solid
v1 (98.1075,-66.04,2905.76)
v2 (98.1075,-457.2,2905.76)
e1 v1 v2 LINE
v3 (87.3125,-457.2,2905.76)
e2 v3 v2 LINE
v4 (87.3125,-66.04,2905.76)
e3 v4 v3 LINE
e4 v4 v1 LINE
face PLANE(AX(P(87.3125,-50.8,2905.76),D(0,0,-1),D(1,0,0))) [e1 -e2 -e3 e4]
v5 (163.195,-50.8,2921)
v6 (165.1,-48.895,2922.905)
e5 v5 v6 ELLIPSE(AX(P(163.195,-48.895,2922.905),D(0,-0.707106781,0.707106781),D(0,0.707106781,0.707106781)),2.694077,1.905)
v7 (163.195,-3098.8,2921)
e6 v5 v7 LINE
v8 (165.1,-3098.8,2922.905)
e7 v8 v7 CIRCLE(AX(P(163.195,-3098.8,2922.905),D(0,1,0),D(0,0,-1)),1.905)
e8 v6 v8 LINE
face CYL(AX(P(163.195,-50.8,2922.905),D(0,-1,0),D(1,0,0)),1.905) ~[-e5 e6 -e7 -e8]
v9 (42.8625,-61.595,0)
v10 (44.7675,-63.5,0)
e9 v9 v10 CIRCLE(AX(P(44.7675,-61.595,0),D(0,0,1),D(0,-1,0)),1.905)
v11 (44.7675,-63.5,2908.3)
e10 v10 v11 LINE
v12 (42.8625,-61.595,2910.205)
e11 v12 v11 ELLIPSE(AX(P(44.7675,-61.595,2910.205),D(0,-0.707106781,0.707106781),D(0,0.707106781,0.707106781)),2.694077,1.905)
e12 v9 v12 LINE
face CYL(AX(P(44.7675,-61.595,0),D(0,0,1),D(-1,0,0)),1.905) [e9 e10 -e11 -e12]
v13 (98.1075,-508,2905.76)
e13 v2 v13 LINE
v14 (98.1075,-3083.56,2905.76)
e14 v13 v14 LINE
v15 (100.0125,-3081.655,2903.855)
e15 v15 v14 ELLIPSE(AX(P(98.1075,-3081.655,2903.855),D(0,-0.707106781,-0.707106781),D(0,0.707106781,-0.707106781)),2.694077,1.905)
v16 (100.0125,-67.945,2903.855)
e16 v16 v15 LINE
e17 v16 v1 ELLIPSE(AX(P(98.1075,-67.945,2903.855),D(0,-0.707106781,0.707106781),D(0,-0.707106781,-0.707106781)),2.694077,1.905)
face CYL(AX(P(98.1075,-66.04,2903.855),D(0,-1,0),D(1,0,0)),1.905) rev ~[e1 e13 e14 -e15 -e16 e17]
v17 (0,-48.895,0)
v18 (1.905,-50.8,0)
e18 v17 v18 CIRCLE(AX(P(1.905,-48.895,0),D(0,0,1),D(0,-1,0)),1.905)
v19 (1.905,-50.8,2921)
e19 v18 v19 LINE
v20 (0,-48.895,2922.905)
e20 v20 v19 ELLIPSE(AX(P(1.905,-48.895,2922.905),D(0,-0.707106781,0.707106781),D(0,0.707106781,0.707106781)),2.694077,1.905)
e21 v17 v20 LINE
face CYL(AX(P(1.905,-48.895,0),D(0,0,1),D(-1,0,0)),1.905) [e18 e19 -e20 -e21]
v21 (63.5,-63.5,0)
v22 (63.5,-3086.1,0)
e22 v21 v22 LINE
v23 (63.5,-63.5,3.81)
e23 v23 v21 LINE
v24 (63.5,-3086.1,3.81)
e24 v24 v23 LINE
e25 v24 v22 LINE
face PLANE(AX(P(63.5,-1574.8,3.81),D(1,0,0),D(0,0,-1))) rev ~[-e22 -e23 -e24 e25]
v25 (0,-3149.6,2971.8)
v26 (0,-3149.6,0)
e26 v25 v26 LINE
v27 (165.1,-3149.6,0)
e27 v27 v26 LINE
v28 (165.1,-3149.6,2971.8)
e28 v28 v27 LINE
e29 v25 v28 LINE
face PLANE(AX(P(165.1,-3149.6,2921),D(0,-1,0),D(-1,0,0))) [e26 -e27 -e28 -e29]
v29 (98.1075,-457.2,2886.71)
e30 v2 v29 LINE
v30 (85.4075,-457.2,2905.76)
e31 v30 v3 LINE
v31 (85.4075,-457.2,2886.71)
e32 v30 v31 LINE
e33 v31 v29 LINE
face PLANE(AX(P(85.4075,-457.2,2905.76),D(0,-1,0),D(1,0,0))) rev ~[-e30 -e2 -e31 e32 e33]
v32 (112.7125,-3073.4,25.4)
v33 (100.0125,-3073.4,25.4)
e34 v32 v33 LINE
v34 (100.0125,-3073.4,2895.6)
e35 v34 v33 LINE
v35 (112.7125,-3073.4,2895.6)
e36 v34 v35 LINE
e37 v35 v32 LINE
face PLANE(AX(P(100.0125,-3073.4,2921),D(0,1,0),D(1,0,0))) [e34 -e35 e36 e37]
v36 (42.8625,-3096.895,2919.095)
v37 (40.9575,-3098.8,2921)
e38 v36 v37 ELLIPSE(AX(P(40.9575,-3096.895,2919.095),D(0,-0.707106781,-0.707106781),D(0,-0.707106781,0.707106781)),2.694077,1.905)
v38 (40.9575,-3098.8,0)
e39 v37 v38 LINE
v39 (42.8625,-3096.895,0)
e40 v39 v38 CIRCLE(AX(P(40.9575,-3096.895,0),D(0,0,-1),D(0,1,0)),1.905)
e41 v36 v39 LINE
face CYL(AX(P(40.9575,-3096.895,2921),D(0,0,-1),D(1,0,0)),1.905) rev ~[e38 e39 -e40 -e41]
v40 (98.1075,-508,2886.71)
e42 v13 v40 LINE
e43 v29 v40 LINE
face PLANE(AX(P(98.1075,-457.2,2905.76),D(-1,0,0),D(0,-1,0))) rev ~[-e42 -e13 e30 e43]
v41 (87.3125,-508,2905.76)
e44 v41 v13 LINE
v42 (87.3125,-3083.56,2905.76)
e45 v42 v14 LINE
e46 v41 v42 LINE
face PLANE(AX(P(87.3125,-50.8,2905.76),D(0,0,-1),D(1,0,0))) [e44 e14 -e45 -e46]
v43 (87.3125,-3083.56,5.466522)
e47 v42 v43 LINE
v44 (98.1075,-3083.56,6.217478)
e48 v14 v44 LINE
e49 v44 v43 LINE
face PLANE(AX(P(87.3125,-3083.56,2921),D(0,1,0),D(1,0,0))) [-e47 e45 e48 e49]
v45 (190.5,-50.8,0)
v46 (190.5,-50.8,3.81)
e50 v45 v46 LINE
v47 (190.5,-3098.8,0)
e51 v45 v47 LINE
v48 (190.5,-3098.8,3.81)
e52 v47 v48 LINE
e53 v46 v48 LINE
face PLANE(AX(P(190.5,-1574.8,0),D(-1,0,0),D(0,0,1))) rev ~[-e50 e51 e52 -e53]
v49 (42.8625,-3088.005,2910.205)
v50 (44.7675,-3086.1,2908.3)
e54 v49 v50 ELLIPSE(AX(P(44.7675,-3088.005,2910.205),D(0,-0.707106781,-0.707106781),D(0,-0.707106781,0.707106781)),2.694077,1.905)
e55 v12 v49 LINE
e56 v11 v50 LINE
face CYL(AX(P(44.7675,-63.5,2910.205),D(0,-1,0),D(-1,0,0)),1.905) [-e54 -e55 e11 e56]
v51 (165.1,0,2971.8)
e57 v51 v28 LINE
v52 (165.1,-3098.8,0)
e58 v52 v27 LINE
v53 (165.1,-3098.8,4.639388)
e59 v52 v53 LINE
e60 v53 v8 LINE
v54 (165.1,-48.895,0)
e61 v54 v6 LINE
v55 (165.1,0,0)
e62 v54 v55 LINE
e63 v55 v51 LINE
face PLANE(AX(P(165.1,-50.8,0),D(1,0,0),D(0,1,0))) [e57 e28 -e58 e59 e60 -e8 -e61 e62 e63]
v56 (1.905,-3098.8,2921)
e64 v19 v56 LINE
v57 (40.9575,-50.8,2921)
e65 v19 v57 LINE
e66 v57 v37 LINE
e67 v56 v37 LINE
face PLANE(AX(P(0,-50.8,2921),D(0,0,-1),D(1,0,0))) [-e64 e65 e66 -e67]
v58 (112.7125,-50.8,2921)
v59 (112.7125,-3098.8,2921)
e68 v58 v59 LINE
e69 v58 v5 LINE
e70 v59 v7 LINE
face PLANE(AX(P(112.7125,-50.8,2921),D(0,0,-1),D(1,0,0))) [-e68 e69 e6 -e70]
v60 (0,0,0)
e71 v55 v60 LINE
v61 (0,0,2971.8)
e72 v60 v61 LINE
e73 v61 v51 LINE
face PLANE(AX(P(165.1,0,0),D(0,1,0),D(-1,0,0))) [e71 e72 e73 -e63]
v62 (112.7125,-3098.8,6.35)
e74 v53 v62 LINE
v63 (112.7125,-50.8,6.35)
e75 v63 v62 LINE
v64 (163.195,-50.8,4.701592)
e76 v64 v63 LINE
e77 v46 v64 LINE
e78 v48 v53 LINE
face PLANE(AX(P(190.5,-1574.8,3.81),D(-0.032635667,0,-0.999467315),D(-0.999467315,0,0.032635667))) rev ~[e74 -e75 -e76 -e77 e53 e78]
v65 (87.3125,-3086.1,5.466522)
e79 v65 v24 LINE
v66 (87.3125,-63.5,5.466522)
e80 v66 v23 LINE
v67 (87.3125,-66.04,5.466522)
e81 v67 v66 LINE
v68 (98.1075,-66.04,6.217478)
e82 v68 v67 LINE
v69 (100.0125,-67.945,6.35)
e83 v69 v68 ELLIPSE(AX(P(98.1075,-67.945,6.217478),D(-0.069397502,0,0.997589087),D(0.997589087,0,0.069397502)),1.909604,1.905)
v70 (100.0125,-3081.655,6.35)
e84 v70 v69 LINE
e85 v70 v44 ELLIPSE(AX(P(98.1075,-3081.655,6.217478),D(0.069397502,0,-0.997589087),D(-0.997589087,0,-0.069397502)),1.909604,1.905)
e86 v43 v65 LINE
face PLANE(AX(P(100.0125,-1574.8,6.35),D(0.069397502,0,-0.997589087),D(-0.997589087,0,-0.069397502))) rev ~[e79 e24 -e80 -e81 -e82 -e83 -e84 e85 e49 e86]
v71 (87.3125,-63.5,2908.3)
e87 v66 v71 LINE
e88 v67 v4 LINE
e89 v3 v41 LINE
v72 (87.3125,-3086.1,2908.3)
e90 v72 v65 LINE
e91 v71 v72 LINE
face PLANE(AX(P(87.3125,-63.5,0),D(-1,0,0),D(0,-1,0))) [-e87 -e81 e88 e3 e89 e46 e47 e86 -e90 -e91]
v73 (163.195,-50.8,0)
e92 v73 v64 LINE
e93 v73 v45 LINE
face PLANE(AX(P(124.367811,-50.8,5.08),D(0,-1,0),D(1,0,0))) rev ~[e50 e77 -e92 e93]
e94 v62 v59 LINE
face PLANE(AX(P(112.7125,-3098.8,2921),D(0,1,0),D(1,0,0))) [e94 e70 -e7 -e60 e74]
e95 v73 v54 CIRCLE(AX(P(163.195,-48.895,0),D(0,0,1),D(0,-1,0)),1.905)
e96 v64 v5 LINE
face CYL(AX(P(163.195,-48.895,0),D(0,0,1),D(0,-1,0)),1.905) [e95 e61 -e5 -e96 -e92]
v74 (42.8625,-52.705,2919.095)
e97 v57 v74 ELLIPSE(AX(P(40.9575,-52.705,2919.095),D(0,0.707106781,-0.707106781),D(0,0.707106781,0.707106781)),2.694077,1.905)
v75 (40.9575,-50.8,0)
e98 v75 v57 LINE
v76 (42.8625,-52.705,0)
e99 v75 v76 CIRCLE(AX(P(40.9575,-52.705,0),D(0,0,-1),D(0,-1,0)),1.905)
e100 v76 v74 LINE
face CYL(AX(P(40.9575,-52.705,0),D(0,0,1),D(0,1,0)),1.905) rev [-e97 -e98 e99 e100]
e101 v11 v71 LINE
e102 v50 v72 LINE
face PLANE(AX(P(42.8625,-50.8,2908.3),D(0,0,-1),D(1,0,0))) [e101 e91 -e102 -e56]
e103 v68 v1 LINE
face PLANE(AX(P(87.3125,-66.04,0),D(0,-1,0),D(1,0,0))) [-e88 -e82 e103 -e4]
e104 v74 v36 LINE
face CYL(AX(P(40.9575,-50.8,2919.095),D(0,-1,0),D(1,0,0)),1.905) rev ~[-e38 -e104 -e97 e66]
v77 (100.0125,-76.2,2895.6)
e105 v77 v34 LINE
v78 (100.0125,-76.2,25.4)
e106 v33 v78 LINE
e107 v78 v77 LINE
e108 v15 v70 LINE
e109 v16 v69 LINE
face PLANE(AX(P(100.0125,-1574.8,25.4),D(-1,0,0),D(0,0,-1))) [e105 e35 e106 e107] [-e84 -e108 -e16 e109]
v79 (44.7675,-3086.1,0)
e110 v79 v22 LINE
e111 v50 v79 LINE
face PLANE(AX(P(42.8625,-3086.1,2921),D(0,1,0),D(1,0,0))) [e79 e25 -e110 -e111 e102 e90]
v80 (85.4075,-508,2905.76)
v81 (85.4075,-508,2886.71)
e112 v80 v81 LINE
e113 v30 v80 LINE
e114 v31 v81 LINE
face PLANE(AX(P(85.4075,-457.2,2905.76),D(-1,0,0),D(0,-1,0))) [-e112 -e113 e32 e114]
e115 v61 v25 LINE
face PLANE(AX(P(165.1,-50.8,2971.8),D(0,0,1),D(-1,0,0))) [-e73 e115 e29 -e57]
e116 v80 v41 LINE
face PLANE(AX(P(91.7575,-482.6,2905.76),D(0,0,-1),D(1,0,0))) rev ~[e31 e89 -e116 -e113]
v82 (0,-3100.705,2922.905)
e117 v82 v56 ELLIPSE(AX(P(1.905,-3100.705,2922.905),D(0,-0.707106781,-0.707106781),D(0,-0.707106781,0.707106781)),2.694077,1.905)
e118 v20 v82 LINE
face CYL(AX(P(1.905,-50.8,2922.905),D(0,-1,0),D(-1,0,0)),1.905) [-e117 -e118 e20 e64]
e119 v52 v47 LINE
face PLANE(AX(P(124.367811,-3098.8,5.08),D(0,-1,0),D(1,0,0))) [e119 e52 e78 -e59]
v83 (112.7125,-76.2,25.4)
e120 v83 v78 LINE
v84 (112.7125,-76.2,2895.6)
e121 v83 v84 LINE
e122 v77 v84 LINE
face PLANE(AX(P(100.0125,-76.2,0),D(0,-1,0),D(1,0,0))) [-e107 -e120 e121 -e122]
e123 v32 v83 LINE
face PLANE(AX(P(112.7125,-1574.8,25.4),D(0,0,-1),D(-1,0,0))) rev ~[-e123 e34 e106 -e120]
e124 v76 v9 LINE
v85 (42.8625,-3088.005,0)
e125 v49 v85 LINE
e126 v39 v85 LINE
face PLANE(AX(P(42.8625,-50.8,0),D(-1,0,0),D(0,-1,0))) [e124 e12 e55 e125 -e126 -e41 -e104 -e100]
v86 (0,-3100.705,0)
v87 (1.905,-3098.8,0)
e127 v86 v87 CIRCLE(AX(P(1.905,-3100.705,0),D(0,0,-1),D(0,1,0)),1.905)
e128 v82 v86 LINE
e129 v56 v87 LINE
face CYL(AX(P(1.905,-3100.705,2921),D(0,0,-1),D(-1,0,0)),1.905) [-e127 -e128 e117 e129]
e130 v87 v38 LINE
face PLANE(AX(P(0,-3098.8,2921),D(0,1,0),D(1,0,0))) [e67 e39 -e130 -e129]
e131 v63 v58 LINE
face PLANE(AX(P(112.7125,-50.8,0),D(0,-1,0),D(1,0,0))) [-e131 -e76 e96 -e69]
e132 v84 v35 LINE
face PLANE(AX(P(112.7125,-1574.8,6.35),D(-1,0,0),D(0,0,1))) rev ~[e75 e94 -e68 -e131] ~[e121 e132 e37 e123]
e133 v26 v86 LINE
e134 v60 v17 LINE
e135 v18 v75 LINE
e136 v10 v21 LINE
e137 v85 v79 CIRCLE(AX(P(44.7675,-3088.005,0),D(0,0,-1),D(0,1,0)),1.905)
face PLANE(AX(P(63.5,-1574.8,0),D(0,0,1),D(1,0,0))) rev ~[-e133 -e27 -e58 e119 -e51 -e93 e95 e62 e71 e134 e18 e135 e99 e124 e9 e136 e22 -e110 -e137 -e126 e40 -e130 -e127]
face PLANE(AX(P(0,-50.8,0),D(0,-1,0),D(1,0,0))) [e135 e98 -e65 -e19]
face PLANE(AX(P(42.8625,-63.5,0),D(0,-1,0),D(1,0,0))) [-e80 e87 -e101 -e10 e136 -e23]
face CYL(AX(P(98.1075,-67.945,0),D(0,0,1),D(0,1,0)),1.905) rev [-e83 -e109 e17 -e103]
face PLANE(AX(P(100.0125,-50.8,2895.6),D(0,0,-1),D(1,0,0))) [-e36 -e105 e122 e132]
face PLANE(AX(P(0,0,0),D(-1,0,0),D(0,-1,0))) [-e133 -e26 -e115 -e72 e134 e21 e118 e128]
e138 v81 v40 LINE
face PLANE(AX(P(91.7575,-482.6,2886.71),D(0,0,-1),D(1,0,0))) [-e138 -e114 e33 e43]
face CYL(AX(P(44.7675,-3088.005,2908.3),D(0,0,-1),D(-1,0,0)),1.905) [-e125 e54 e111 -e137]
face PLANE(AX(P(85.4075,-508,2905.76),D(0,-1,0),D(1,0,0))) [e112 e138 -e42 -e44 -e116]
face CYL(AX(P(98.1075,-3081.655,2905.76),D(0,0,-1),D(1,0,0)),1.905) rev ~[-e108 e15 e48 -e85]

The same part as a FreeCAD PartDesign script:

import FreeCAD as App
import Part
import Sketcher

V = App.Vector
Q = App.Units.Quantity


def edges_at(feature, points):
    """Names of the edges that pass closest to the given points."""
    edges = feature.Shape.Edges
    near = lambda p: min(range(len(edges)), key=lambda i: edges[i].distToShape(Part.Vertex(*p))[0])
    return sorted({f"Edge{near(p) + 1}" for p in points})


def add_polygon(sketch, points):
    """Adds a closed chain of lines whose ends are joined by coincident constraints."""
    first, n = sketch.GeometryCount, len(points)
    for a, b in zip(points, points[1:] + points[:1]):
        sketch.addGeometry(Part.LineSegment(App.Vector(*a, 0), App.Vector(*b, 0)), False)
    for i in range(n):
        sketch.addConstraint(Sketcher.Constraint("Coincident", first + i, 2, first + (i + 1) % n, 1))

doc = App.newDocument("Part")
body = doc.addObject("PartDesign::Body", "Body")

# Sketch on XY plane
sketch1 = doc.addObject("Sketcher::SketchObject", "Sketch")
body.addObject(sketch1)
sketch1.AttachmentSupport = (doc.XY_Plane, [""])
sketch1.MapMode = "FlatFace"
add_polygon(sketch1, [(165.1, 0), (0, 0), (0, -50.8), (42.9, -50.8), (42.9, -63.5), (87.3, -63.5), (87.3, -66), (100, -66), (100, -76.2), (112.7, -76.2), (112.7, -50.8), (165.1, -50.8)])  # lines 0-11
sketch1.addConstraint(Sketcher.Constraint("Horizontal", 0))
sketch1.addConstraint(Sketcher.Constraint("Vertical", 1))
sketch1.addConstraint(Sketcher.Constraint("Horizontal", 2))
sketch1.addConstraint(Sketcher.Constraint("Vertical", 3))
sketch1.addConstraint(Sketcher.Constraint("Horizontal", 4))
sketch1.addConstraint(Sketcher.Constraint("Vertical", 5))
sketch1.addConstraint(Sketcher.Constraint("Horizontal", 6))
sketch1.addConstraint(Sketcher.Constraint("Vertical", 7))
sketch1.addConstraint(Sketcher.Constraint("Horizontal", 8))
sketch1.addConstraint(Sketcher.Constraint("Vertical", 9))
sketch1.addConstraint(Sketcher.Constraint("Horizontal", 10))
sketch1.addConstraint(Sketcher.Constraint("Vertical", 11))
sketch1.addConstraint(Sketcher.Constraint("Coincident", 0, 2, -1, 1))
sketch1.addConstraint(Sketcher.Constraint("Horizontal", 2, 2, 9, 2))
sketch1.addConstraint(Sketcher.Constraint("Equal", 6, 8))
sketch1.addConstraint(Sketcher.Constraint("Equal", 8, 3))
sketch1.addConstraint(Sketcher.Constraint("DistanceY", 1, 2, 1, 1, Q("2 in")))
sketch1.addConstraint(Sketcher.Constraint("DistanceY", 9, 1, 9, 2, Q("1 in")))
sketch1.addConstraint(Sketcher.Constraint("DistanceX", 0, 2, 0, 1, Q("6.5 in")))
sketch1.addConstraint(Sketcher.Constraint("DistanceX", 6, 1, 6, 2, Q("0.5 in")))
sketch1.addConstraint(Sketcher.Constraint("DistanceY", 5, 2, 5, 1, Q("0.1 in")))
sketch1.addConstraint(Sketcher.Constraint("DistanceX", 4, 1, 4, 2, Q("1.75 in")))
sketch1.addConstraint(Sketcher.Constraint("DistanceX", 2, 1, 2, 2, Q("1.6875 in")))

# Sketch on YZ plane
sketch2 = doc.addObject("Sketcher::SketchObject", "Sketch001")
body.addObject(sketch2)
sketch2.AttachmentSupport = (doc.YZ_Plane, [""])
sketch2.MapMode = "FlatFace"
sketch2.addGeometry(Part.LineSegment(V(-51, 0, 0), V(-51, 2921, 0)), False)
sketch2.addGeometry(Part.LineSegment(V(-51, 2921, 0), V(-3099, 2921, 0)), False)
sketch2.addGeometry(Part.LineSegment(V(-3099, 2921, 0), V(-3099, 0, 0)), False)
sketch2.addConstraint(Sketcher.Constraint("Coincident", 0, 2, 1, 1))
sketch2.addConstraint(Sketcher.Constraint("Coincident", 1, 2, 2, 1))
sketch2.addConstraint(Sketcher.Constraint("Vertical", 0))
sketch2.addConstraint(Sketcher.Constraint("Horizontal", 1))
sketch2.addConstraint(Sketcher.Constraint("Vertical", 2))
sketch2.addConstraint(Sketcher.Constraint("PointOnObject", 0, 1, -1))
sketch2.addConstraint(Sketcher.Constraint("PointOnObject", 2, 2, -1))
sketch2.addConstraint(Sketcher.Constraint("DistanceX", 1, 2, 1, 1, Q("120 in")))
sketch2.addConstraint(Sketcher.Constraint("DistanceY", 0, 1, 0, 2, Q("115 in")))
sketch2.addConstraint(Sketcher.Constraint("DistanceX", 0, 1, -1, 1, Q("2 in")))
doc.recompute()

additivepipe = doc.addObject("PartDesign::AdditivePipe", "AdditivePipe")
body.addObject(additivepipe)
additivepipe.Profile = sketch1
additivepipe.Spine = (sketch2, ["Edge1", "Edge2", "Edge3"])
additivepipe.Transition = "Right corner"
doc.recompute()

fillet = doc.addObject("PartDesign::Fillet", "Fillet")
body.addObject(fillet)
fillet.Base = (additivepipe, edges_at(additivepipe, [
    (0, -50.8, 1460.5),
    (42.862, -50.8, 1460.5),
    (42.862, -63.5, 1454.15),
    (165.1, -50.8, 1460.5),
    (165.1, -1574.8, 2921),
    (0, -1574.8, 2921),
    (42.862, -1574.8, 2921),
    (42.862, -1574.8, 2908.3),
    (0, -3098.8, 1460.5),
    (42.862, -3098.8, 1460.5),
    (42.862, -3086.1, 1454.15),
    (100.013, -3083.56, 1452.88),
    (100.013, -1574.8, 2905.76),
    (100.013, -66.04, 1452.88),
]))
fillet.Radius = Q("0.075 in")

# Sketch on XZ plane
sketch3 = doc.addObject("Sketcher::SketchObject", "Sketch002")
body.addObject(sketch3)
sketch3.AttachmentSupport = (doc.XZ_Plane, [""])
sketch3.MapMode = "FlatFace"
sketch3.AttachmentOffset = App.Placement(V(0, 0, 62 * 25.4), App.Rotation())
add_polygon(sketch3, [(63.5, 3.8), (63.5, 0), (190.5, 0), (190.5, 3.8), (112.7, 6.3), (112.7, 25.4), (100, 25.4), (100, 6.3)])  # lines 0-7
sketch3.addConstraint(Sketcher.Constraint("Vertical", 0))
sketch3.addConstraint(Sketcher.Constraint("Horizontal", 1))
sketch3.addConstraint(Sketcher.Constraint("Vertical", 2))
sketch3.addConstraint(Sketcher.Constraint("Vertical", 4))
sketch3.addConstraint(Sketcher.Constraint("Horizontal", 5))
sketch3.addConstraint(Sketcher.Constraint("Vertical", 6))
sketch3.addConstraint(Sketcher.Constraint("PointOnObject", 0, 2, -1))
sketch3.addConstraint(Sketcher.Constraint("Horizontal", 3, 2, 6, 2))
sketch3.addConstraint(Sketcher.Constraint("Horizontal", 2, 2, 7, 2))
sketch3.addConstraint(Sketcher.Constraint("DistanceX", 1, 1, 1, 2, Q("5 in")))
sketch3.addConstraint(Sketcher.Constraint("DistanceX", 5, 2, 5, 1, Q("0.5 in")))
sketch3.addConstraint(Sketcher.Constraint("DistanceY", -1, 1, 4, 2, Q("1 in")))
sketch3.addConstraint(Sketcher.Constraint("DistanceY", 0, 2, 0, 1, Q("0.15 in")))
sketch3.addConstraint(Sketcher.Constraint("DistanceY", 4, 1, 4, 2, Q("0.75 in")))
sketch3.addConstraint(Sketcher.Constraint("DistanceX", -1, 1, 0, 2, Q("2.5 in")))
sketch3.addConstraint(Sketcher.Constraint("DistanceX", -1, 1, 3, 2, Q("4.4375 in")))
pad1 = doc.addObject("PartDesign::Pad", "Pad")
body.addObject(pad1)
pad1.Profile = sketch3
pad1.Type = "TwoLengths"
pad1.Length = Q("60 in")
pad1.Length2 = Q("60 in")
pad1.Reversed = True

# Sketch on XY plane
sketch4 = doc.addObject("Sketcher::SketchObject", "Sketch003")
body.addObject(sketch4)
sketch4.AttachmentSupport = (doc.XY_Plane, [""])
sketch4.MapMode = "FlatFace"
sketch4.AttachmentOffset = App.Placement(V(0, 0, 114.4 * 25.4), App.Rotation())
add_polygon(sketch4, [(85, -508), (85, -457), (98, -457), (98, -508)])  # lines 0-3
sketch4.addConstraint(Sketcher.Constraint("Vertical", 0))
sketch4.addConstraint(Sketcher.Constraint("Horizontal", 1))
sketch4.addConstraint(Sketcher.Constraint("Vertical", 2))
sketch4.addConstraint(Sketcher.Constraint("Horizontal", 3))
sketch4.addConstraint(Sketcher.Constraint("DistanceY", 0, 1, 0, 2, Q("2 in")))
sketch4.addConstraint(Sketcher.Constraint("DistanceX", 1, 1, 1, 2, Q("0.5 in")))
sketch4.addConstraint(Sketcher.Constraint("DistanceY", 0, 2, -1, 1, Q("18 in")))
sketch4.addConstraint(Sketcher.Constraint("DistanceX", -1, 1, 0, 2, Q("3.3625 in")))
pad2 = doc.addObject("PartDesign::Pad", "Pad001")
body.addObject(pad2)
pad2.Profile = sketch4
pad2.Length = Q("0.75 in")
pad2.Reversed = True

doc.recompute()
